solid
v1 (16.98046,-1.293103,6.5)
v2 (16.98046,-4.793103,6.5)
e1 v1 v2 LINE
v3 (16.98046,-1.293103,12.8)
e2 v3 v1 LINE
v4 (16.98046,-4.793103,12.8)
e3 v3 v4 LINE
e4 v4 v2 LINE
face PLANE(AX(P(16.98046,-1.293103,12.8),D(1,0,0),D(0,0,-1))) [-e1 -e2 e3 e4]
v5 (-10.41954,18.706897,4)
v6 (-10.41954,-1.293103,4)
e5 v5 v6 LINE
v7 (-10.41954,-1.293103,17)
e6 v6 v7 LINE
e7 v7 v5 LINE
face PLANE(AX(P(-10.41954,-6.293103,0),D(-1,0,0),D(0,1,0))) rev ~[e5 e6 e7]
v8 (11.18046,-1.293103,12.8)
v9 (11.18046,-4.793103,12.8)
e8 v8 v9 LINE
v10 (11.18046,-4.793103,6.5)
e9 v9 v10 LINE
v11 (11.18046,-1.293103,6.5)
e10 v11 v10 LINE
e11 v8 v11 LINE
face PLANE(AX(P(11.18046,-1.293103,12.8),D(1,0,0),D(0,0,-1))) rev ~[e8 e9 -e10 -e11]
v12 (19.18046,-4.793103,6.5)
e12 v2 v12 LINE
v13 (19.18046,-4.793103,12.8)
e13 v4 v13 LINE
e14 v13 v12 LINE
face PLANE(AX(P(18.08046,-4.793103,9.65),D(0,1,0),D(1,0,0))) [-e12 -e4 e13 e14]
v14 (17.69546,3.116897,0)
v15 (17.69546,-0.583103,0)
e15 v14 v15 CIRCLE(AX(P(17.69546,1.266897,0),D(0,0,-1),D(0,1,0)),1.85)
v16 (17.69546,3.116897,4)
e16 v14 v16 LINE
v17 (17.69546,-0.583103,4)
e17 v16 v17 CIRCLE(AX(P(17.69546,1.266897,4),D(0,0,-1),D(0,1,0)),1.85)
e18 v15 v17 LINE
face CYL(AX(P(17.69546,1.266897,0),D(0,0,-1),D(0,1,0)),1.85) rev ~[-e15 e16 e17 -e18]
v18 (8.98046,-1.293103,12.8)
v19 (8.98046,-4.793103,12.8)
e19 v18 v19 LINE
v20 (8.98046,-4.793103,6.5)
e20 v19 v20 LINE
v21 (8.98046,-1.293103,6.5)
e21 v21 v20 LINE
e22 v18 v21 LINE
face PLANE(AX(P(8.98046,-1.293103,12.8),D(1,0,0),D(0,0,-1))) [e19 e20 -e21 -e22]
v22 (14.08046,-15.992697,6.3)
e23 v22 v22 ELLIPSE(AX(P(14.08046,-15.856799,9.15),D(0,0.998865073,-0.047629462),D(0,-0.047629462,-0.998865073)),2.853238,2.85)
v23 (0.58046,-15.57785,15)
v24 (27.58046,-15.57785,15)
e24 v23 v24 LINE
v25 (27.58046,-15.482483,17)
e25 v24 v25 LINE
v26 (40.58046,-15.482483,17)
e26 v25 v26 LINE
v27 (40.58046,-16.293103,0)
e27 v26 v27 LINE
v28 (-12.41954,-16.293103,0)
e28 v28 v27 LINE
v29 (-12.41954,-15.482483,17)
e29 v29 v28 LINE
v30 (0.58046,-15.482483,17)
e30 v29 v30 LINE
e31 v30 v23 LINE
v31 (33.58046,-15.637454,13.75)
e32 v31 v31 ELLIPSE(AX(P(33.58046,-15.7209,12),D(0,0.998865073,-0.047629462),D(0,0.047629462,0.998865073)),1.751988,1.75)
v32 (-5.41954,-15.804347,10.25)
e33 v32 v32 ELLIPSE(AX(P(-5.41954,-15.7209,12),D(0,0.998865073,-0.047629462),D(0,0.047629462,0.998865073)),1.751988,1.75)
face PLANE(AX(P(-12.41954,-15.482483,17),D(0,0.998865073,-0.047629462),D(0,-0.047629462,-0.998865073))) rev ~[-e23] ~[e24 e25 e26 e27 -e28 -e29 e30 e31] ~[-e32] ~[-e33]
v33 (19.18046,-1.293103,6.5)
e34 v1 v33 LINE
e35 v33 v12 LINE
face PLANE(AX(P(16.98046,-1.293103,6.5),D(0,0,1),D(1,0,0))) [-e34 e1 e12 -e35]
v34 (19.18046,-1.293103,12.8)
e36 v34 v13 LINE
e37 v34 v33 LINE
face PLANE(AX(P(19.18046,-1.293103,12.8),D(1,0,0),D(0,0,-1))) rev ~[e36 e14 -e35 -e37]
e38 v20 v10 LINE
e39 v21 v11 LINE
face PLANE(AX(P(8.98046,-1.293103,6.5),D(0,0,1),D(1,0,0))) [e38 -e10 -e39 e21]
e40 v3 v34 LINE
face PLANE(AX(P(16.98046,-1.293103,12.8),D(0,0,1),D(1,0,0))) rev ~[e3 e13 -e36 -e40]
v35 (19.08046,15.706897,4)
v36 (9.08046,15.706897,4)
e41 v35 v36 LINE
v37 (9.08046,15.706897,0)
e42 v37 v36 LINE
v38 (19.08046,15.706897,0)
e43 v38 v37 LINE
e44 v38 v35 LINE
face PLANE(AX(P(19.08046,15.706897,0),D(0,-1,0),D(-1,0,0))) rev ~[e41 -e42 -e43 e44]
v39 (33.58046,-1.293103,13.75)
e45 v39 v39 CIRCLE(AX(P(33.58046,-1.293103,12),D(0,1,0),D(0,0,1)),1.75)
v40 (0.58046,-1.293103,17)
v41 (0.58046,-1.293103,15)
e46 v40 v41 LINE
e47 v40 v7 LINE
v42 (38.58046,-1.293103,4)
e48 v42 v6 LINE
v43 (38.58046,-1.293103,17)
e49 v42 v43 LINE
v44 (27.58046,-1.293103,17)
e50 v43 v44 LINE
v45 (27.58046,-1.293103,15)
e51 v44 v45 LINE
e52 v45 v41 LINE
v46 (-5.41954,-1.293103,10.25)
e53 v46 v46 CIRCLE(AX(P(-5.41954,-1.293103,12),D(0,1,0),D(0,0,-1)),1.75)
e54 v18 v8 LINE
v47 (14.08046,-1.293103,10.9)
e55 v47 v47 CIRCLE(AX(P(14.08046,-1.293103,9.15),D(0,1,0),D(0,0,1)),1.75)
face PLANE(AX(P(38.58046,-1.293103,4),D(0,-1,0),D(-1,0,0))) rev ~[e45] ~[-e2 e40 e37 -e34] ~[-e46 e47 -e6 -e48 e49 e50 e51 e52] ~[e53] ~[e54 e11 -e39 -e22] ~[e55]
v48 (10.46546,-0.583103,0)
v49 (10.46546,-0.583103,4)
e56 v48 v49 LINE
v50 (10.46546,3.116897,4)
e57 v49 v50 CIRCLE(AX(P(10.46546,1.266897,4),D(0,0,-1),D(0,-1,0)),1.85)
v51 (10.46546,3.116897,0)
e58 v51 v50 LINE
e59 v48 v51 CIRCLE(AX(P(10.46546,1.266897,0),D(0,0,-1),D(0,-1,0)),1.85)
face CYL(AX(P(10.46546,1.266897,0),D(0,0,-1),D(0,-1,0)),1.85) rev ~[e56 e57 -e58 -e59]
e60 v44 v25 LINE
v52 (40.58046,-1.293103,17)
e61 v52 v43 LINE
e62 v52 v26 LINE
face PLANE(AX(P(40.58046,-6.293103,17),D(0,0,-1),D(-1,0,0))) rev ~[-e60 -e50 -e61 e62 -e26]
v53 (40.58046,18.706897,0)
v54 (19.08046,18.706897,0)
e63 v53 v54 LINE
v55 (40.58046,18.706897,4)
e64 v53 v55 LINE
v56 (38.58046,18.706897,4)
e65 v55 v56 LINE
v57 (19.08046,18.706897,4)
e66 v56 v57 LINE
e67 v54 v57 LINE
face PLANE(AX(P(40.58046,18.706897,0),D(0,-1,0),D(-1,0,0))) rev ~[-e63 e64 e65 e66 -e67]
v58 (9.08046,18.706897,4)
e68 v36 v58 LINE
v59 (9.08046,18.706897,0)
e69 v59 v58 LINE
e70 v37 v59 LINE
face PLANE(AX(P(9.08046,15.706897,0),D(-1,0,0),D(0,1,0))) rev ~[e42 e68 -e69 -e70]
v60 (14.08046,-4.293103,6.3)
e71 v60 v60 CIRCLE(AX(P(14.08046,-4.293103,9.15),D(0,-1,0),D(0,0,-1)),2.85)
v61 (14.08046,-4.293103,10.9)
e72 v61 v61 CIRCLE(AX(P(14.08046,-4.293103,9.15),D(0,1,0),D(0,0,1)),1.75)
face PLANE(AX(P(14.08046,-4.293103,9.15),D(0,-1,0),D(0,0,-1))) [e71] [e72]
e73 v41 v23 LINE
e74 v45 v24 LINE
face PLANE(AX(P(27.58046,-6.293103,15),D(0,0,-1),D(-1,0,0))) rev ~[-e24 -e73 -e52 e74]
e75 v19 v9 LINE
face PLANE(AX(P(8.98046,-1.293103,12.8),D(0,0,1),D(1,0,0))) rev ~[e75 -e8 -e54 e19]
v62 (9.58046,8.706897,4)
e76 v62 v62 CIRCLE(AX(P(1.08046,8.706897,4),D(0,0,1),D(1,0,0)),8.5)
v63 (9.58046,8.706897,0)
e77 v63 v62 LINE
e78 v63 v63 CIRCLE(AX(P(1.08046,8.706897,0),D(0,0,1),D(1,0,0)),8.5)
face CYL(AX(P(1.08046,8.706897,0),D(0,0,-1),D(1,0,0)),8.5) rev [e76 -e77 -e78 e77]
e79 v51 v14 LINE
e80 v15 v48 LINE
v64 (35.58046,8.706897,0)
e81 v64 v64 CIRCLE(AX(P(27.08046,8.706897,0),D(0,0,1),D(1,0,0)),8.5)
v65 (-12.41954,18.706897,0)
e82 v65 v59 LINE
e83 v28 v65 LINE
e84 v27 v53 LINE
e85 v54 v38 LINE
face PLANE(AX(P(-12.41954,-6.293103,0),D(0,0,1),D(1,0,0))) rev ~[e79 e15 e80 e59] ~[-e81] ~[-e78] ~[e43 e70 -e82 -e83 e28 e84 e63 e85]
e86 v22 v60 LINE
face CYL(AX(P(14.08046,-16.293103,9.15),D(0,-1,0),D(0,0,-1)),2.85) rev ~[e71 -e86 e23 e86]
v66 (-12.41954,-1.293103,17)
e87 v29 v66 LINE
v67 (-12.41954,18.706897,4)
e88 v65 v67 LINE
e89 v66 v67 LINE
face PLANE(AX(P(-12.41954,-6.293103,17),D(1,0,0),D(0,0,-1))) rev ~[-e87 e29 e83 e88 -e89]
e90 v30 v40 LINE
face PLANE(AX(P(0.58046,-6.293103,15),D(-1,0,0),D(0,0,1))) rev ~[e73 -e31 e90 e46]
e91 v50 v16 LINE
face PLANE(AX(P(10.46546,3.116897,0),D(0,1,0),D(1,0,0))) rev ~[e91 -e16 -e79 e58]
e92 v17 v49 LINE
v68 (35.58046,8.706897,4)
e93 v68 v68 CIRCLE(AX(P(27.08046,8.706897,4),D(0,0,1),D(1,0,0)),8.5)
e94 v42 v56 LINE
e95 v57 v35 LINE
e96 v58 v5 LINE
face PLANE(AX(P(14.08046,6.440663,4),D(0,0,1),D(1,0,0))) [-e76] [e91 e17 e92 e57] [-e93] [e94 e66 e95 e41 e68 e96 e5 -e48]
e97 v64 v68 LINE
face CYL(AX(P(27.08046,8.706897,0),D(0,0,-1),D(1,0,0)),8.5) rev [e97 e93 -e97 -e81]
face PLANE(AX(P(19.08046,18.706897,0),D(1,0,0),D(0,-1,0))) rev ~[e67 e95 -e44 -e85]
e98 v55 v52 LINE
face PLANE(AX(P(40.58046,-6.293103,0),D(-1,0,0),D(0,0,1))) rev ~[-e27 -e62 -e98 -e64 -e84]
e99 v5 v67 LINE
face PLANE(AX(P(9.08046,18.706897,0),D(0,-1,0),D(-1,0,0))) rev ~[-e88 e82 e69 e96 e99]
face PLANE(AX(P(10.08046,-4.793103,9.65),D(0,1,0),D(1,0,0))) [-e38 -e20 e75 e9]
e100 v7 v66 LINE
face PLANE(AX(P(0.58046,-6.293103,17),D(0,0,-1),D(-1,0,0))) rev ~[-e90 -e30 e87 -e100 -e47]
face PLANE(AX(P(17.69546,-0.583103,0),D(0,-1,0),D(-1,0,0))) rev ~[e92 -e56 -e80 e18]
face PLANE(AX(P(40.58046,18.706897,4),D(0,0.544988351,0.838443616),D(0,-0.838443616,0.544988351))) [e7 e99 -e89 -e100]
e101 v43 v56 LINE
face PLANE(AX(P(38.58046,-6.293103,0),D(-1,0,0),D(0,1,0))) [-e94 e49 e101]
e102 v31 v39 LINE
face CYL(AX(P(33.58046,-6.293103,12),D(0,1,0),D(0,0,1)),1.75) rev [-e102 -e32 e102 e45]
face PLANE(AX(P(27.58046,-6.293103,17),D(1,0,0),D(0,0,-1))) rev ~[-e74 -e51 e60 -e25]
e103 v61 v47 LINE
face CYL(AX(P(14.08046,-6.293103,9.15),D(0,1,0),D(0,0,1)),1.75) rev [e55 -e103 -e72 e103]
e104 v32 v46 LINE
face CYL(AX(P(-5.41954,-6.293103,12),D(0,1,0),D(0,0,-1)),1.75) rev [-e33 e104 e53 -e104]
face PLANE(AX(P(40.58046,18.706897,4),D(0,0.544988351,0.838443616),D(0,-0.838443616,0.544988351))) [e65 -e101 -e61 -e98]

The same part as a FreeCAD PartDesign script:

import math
import FreeCAD as App
import Part
import Sketcher

V = App.Vector
Q = App.Units.Quantity


def add_polygon(sketch, points):
    """Adds a closed chain of lines whose ends are joined by coincident constraints."""
    first, n = sketch.GeometryCount, len(points)
    for a, b in zip(points, points[1:] + points[:1]):
        sketch.addGeometry(Part.LineSegment(App.Vector(*a, 0), App.Vector(*b, 0)), False)
    for i in range(n):
        sketch.addConstraint(Sketcher.Constraint("Coincident", first + i, 2, first + (i + 1) % n, 1))

doc = App.newDocument("Part")
body = doc.addObject("PartDesign::Body", "Body")

# Sketch on XY plane
sketch1 = body.newObject("Sketcher::SketchObject", "Sketch")
sketch1.AttachmentSupport = (doc.getObject("XY_Plane"), [""])
sketch1.MapMode = "FlatFace"
add_polygon(sketch1, [(-10.4, 18.7), (-10.4, -6.3), (38.6, -6.3), (38.6, 18.7), (19.1, 18.7), (19.1, 15.7), (9.1, 15.7), (9.1, 18.7)])  # lines 0-7
sketch1.addGeometry(Part.LineSegment(V(17.7, -0.6, 0), V(10.5, -0.6, 0)), False)  # 8
sketch1.addGeometry(Part.ArcOfCircle(Part.Circle(V(10.5, 1.3, 0), V(0, 0, 1), 1.9), math.radians(90), math.radians(270)), False)  # 9
sketch1.addGeometry(Part.LineSegment(V(10.5, 3.1, 0), V(17.7, 3.1, 0)), False)  # 10
sketch1.addGeometry(Part.ArcOfCircle(Part.Circle(V(17.7, 1.3, 0), V(0, 0, 1), 1.9), math.radians(-90), math.radians(90)), False)  # 11
sketch1.addGeometry(Part.Circle(V(1.1, 8.7, 0), V(0, 0, 1), 8.5), False)  # 12
sketch1.addGeometry(Part.Circle(V(27.1, 8.7, 0), V(0, 0, 1), 8.5), False)  # 13
sketch1.addConstraint(Sketcher.Constraint("Tangent", 8, 2, 9, 2))
sketch1.addConstraint(Sketcher.Constraint("Tangent", 9, 1, 10, 1))
sketch1.addConstraint(Sketcher.Constraint("Tangent", 10, 2, 11, 2))
sketch1.addConstraint(Sketcher.Constraint("Tangent", 11, 1, 8, 1))
sketch1.addConstraint(Sketcher.Constraint("Vertical", 0))
sketch1.addConstraint(Sketcher.Constraint("Horizontal", 1))
sketch1.addConstraint(Sketcher.Constraint("Vertical", 2))
sketch1.addConstraint(Sketcher.Constraint("Horizontal", 3))
sketch1.addConstraint(Sketcher.Constraint("Vertical", 4))
sketch1.addConstraint(Sketcher.Constraint("Horizontal", 5))
sketch1.addConstraint(Sketcher.Constraint("Vertical", 6))
sketch1.addConstraint(Sketcher.Constraint("Horizontal", 7))
sketch1.addConstraint(Sketcher.Constraint("Horizontal", 8))
sketch1.addConstraint(Sketcher.Constraint("Horizontal", 10))
sketch1.addConstraint(Sketcher.Constraint("Equal", 12, 13))
sketch1.addConstraint(Sketcher.Constraint("Horizontal", 12, 3, 13, 3))
sketch1.addConstraint(Sketcher.Constraint("Horizontal", 3, 2, 6, 2))
sketch1.addConstraint(Sketcher.Constraint("Equal", 3, 7))
sketch1.addConstraint(Sketcher.Constraint("Diameter", 12, 17.0))
sketch1.addConstraint(Sketcher.Constraint("DistanceX", 1, 1, 1, 2, 49.0))
sketch1.addConstraint(Sketcher.Constraint("DistanceX", 5, 2, 5, 1, 10.0))
sketch1.addConstraint(Sketcher.Constraint("DistanceY", 0, 2, 0, 1, 25.0))
sketch1.addConstraint(Sketcher.Constraint("DistanceY", 4, 2, 4, 1, 3.0))
sketch1.addConstraint(Sketcher.Constraint("Radius", 9, 1.85))
sketch1.addConstraint(Sketcher.Constraint("DistanceX", 12, 3, 13, 3, 26.0))
sketch1.addConstraint(Sketcher.Constraint("DistanceY", 0, 2, 12, 3, 15.0))
sketch1.addConstraint(Sketcher.Constraint("DistanceX", 3, 2, 13, 3, 8.0))
sketch1.addConstraint(Sketcher.Constraint("DistanceX", 8, 2, 8, 1, 7.23))
sketch1.addConstraint(Sketcher.Constraint("DistanceY", 9, 3, 12, 3, 7.44))
sketch1.addConstraint(Sketcher.Constraint("DistanceX", 12, 3, 9, 3, 9.385))
sketch1.addConstraint(Sketcher.Constraint("DistanceX", -1, 1, 9, 3, 10.46546))
sketch1.addConstraint(Sketcher.Constraint("DistanceY", -1, 1, 9, 3, 1.266897))
pad1 = body.newObject("PartDesign::Pad", "Pad")
pad1.Profile = sketch1
pad1.Length = 4

# Sketch on XY plane
sketch2 = body.newObject("Sketcher::SketchObject", "Sketch001")
sketch2.AttachmentSupport = (doc.getObject("XY_Plane"), [""])
sketch2.MapMode = "FlatFace"
sketch2.AttachmentOffset = App.Placement(V(0, 0, 4), App.Rotation())
add_polygon(sketch2, [(39, -1), (-10, -1), (-10, -6), (39, -6)])  # lines 0-3
sketch2.addConstraint(Sketcher.Constraint("Horizontal", 0))
sketch2.addConstraint(Sketcher.Constraint("Vertical", 1))
sketch2.addConstraint(Sketcher.Constraint("Horizontal", 2))
sketch2.addConstraint(Sketcher.Constraint("Vertical", 3))
sketch2.addConstraint(Sketcher.Constraint("DistanceX", 0, 2, 0, 1, 49.0))
sketch2.addConstraint(Sketcher.Constraint("DistanceY", 1, 2, 1, 1, 5.0))
sketch2.addConstraint(Sketcher.Constraint("DistanceX", 0, 2, -1, 1, 10.41954))
sketch2.addConstraint(Sketcher.Constraint("DistanceY", 0, 2, -1, 1, 1.293103))
pad2 = body.newObject("PartDesign::Pad", "Pad001")
pad2.Profile = sketch2
pad2.Length = 13

# Sketch on XZ plane
sketch3 = body.newObject("Sketcher::SketchObject", "Sketch002")
sketch3.AttachmentSupport = (doc.getObject("XZ_Plane"), [""])
sketch3.MapMode = "FlatFace"
sketch3.AttachmentOffset = App.Placement(V(0, 0, 1.293103), App.Rotation())
add_polygon(sketch3, [(9, 6.5), (9, 12.8), (11.2, 12.8), (11.2, 6.5)])  # lines 0-3
add_polygon(sketch3, [(17, 6.5), (17, 12.8), (19.2, 12.8), (19.2, 6.5)])  # lines 4-7
sketch3.addConstraint(Sketcher.Constraint("Vertical", 0))
sketch3.addConstraint(Sketcher.Constraint("Horizontal", 1))
sketch3.addConstraint(Sketcher.Constraint("Vertical", 2))
sketch3.addConstraint(Sketcher.Constraint("Horizontal", 3))
sketch3.addConstraint(Sketcher.Constraint("Vertical", 4))
sketch3.addConstraint(Sketcher.Constraint("Horizontal", 5))
sketch3.addConstraint(Sketcher.Constraint("Vertical", 6))
sketch3.addConstraint(Sketcher.Constraint("Horizontal", 7))
sketch3.addConstraint(Sketcher.Constraint("Horizontal", 1, 2, 4, 2))
sketch3.addConstraint(Sketcher.Constraint("Horizontal", 3, 2, 6, 2))
sketch3.addConstraint(Sketcher.Constraint("Equal", 3, 5))
sketch3.addConstraint(Sketcher.Constraint("DistanceX", 1, 1, 1, 2, 2.2))
sketch3.addConstraint(Sketcher.Constraint("DistanceY", 0, 1, 0, 2, 6.3))
sketch3.addConstraint(Sketcher.Constraint("DistanceX", 0, 2, 4, 2, 8.0))
sketch3.addConstraint(Sketcher.Constraint("DistanceY", -1, 1, 0, 2, 12.8))
sketch3.addConstraint(Sketcher.Constraint("DistanceX", -1, 1, 0, 2, 8.98046))
pocket1 = body.newObject("PartDesign::Pocket", "Pocket")
pocket1.Profile = sketch3
pocket1.Length = 3.5
pocket1.Reversed = True

# Sketch on XZ plane
sketch4 = body.newObject("Sketcher::SketchObject", "Sketch003")
sketch4.AttachmentSupport = (doc.getObject("XZ_Plane"), [""])
sketch4.MapMode = "FlatFace"
sketch4.AttachmentOffset = App.Placement(V(0, 0, 1.293103), App.Rotation())
sketch4.addGeometry(Part.Circle(V(14.1, 9.2, 0), V(0, 0, 1), 1.8), False)
sketch4.addGeometry(Part.Circle(V(33.6, 12, 0), V(0, 0, 1), 1.8), False)
sketch4.addGeometry(Part.Circle(V(-5.4, 12, 0), V(0, 0, 1), 1.8), False)
sketch4.addConstraint(Sketcher.Constraint("Equal", 0, 1))
sketch4.addConstraint(Sketcher.Constraint("Equal", 1, 2))
sketch4.addConstraint(Sketcher.Constraint("Horizontal", 1, 3, 2, 3))
sketch4.addConstraint(Sketcher.Constraint("Diameter", 0, 3.5))
sketch4.addConstraint(Sketcher.Constraint("DistanceY", -1, 1, 1, 3, 12.0))
sketch4.addConstraint(Sketcher.Constraint("DistanceX", 2, 3, 1, 3, 39.0))
sketch4.addConstraint(Sketcher.Constraint("DistanceX", 0, 3, 1, 3, 19.5))
sketch4.addConstraint(Sketcher.Constraint("DistanceY", -1, 1, 0, 3, 9.15))
sketch4.addConstraint(Sketcher.Constraint("DistanceX", -1, 1, 0, 3, 14.08046))
pocket2 = body.newObject("PartDesign::Pocket", "Pocket001")
pocket2.Profile = sketch4
pocket2.Type = "ThroughAll"
pocket2.Reversed = True

# Sketch on XZ plane
sketch5 = body.newObject("Sketcher::SketchObject", "Sketch004")
sketch5.AttachmentSupport = (doc.getObject("XZ_Plane"), [""])
sketch5.MapMode = "FlatFace"
sketch5.AttachmentOffset = App.Placement(V(0, 0, 1.293103), App.Rotation())
add_polygon(sketch5, [(0.6, 15), (0.6, 17), (27.6, 17), (27.6, 15)])  # lines 0-3
sketch5.addConstraint(Sketcher.Constraint("Vertical", 0))
sketch5.addConstraint(Sketcher.Constraint("Horizontal", 1))
sketch5.addConstraint(Sketcher.Constraint("Vertical", 2))
sketch5.addConstraint(Sketcher.Constraint("Horizontal", 3))
sketch5.addConstraint(Sketcher.Constraint("DistanceX", 1, 1, 1, 2, 27.0))
sketch5.addConstraint(Sketcher.Constraint("DistanceY", 0, 1, 0, 2, 2.0))
sketch5.addConstraint(Sketcher.Constraint("DistanceY", -1, 1, 0, 2, 17.0))
sketch5.addConstraint(Sketcher.Constraint("DistanceX", -1, 1, 0, 2, 0.58046))
pocket3 = body.newObject("PartDesign::Pocket", "Pocket002")
pocket3.Profile = sketch5
pocket3.Type = "ThroughAll"
pocket3.Reversed = True

# Sketch on XY plane
sketch6 = body.newObject("Sketcher::SketchObject", "Sketch005")
sketch6.AttachmentSupport = (doc.getObject("XY_Plane"), [""])
sketch6.MapMode = "FlatFace"
add_polygon(sketch6, [(40.6, 18.7), (40.6, -6.3), (38.6, -6.3), (38.6, 18.7)])  # lines 0-3
add_polygon(sketch6, [(-10.4, 18.7), (-10.4, -6.3), (-12.4, -6.3), (-12.4, 18.7)])  # lines 4-7
sketch6.addConstraint(Sketcher.Constraint("Vertical", 0))
sketch6.addConstraint(Sketcher.Constraint("Horizontal", 1))
sketch6.addConstraint(Sketcher.Constraint("Vertical", 2))
sketch6.addConstraint(Sketcher.Constraint("Horizontal", 3))
sketch6.addConstraint(Sketcher.Constraint("Vertical", 4))
sketch6.addConstraint(Sketcher.Constraint("Horizontal", 5))
sketch6.addConstraint(Sketcher.Constraint("Vertical", 6))
sketch6.addConstraint(Sketcher.Constraint("Horizontal", 7))
sketch6.addConstraint(Sketcher.Constraint("Horizontal", 1, 2, 4, 2))
sketch6.addConstraint(Sketcher.Constraint("Horizontal", 3, 2, 6, 2))
sketch6.addConstraint(Sketcher.Constraint("Equal", 3, 5))
sketch6.addConstraint(Sketcher.Constraint("DistanceX", 1, 2, 1, 1, 2.0))
sketch6.addConstraint(Sketcher.Constraint("DistanceY", 0, 2, 0, 1, 25.0))
sketch6.addConstraint(Sketcher.Constraint("DistanceX", 4, 2, 1, 2, 49.0))
sketch6.addConstraint(Sketcher.Constraint("DistanceX", -1, 1, 0, 2, 40.58046))
sketch6.addConstraint(Sketcher.Constraint("DistanceY", 0, 2, -1, 1, 6.293103))
pad3 = body.newObject("PartDesign::Pad", "Pad002")
pad3.Profile = sketch6
pad3.Length = 17

# Sketch on YZ plane
sketch7 = body.newObject("Sketcher::SketchObject", "Sketch006")
sketch7.AttachmentSupport = (doc.getObject("YZ_Plane"), [""])
sketch7.MapMode = "FlatFace"
sketch7.AttachmentOffset = App.Placement(V(0, 0, 40.58046), App.Rotation())
add_polygon(sketch7, [(-1, 17), (19, 4), (19, 17)])  # lines 0-2
sketch7.addConstraint(Sketcher.Constraint("Vertical", 1))
sketch7.addConstraint(Sketcher.Constraint("Horizontal", 2))
sketch7.addConstraint(Sketcher.Constraint("DistanceX", 2, 2, 2, 1, 20.0))
sketch7.addConstraint(Sketcher.Constraint("DistanceY", 1, 1, 1, 2, 13.0))
sketch7.addConstraint(Sketcher.Constraint("DistanceY", -1, 1, 0, 2, 4.0))
sketch7.addConstraint(Sketcher.Constraint("DistanceX", -1, 1, 0, 2, 18.706897))
pocket4 = body.newObject("PartDesign::Pocket", "Pocket003")
pocket4.Profile = sketch7
pocket4.Length = 72

# Sketch on XZ plane
sketch8 = body.newObject("Sketcher::SketchObject", "Sketch007")
sketch8.AttachmentSupport = (doc.getObject("XZ_Plane"), [""])
sketch8.MapMode = "FlatFace"
sketch8.AttachmentOffset = App.Placement(V(0, 0, 6.293103), App.Rotation())
add_polygon(sketch8, [(40.6, 0), (40.6, 17), (27.6, 17), (27.6, 15), (0.6, 15), (0.6, 17), (-12.4, 17), (-12.4, 0)])  # lines 0-7
sketch8.addGeometry(Part.Circle(V(33.6, 12, 0), V(0, 0, 1), 1.8), False)  # 8
sketch8.addGeometry(Part.Circle(V(-5.4, 12, 0), V(0, 0, 1), 1.8), False)  # 9
sketch8.addGeometry(Part.Circle(V(14.1, 9.2, 0), V(0, 0, 1), 1.8), False)  # 10
sketch8.addConstraint(Sketcher.Constraint("Vertical", 0))
sketch8.addConstraint(Sketcher.Constraint("Horizontal", 1))
sketch8.addConstraint(Sketcher.Constraint("Vertical", 2))
sketch8.addConstraint(Sketcher.Constraint("Horizontal", 3))
sketch8.addConstraint(Sketcher.Constraint("Vertical", 4))
sketch8.addConstraint(Sketcher.Constraint("Horizontal", 5))
sketch8.addConstraint(Sketcher.Constraint("Vertical", 6))
sketch8.addConstraint(Sketcher.Constraint("Horizontal", 7))
sketch8.addConstraint(Sketcher.Constraint("Equal", 8, 9))
sketch8.addConstraint(Sketcher.Constraint("Equal", 9, 10))
sketch8.addConstraint(Sketcher.Constraint("PointOnObject", 6, 2, -1))
sketch8.addConstraint(Sketcher.Constraint("Horizontal", 8, 3, 9, 3))
sketch8.addConstraint(Sketcher.Constraint("Horizontal", 1, 2, 4, 2))
sketch8.addConstraint(Sketcher.Constraint("Equal", 1, 5))
sketch8.addConstraint(Sketcher.Constraint("Diameter", 8, 3.5))
sketch8.addConstraint(Sketcher.Constraint("DistanceX", 1, 2, 1, 1, 13.0))
sketch8.addConstraint(Sketcher.Constraint("DistanceX", 3, 2, 3, 1, 27.0))
sketch8.addConstraint(Sketcher.Constraint("DistanceY", 0, 1, 0, 2, 17.0))
sketch8.addConstraint(Sketcher.Constraint("DistanceY", 2, 2, 2, 1, 2.0))
sketch8.addConstraint(Sketcher.Constraint("DistanceY", -1, 1, 8, 3, 12.0))
sketch8.addConstraint(Sketcher.Constraint("DistanceX", 9, 3, 8, 3, 39.0))
sketch8.addConstraint(Sketcher.Constraint("DistanceX", 8, 3, 0, 2, 7.0))
sketch8.addConstraint(Sketcher.Constraint("DistanceX", 10, 3, 8, 3, 19.5))
sketch8.addConstraint(Sketcher.Constraint("DistanceY", -1, 1, 10, 3, 9.15))
sketch8.addConstraint(Sketcher.Constraint("DistanceX", -1, 1, 8, 3, 33.58046))
pad4 = body.newObject("PartDesign::Pad", "Pad003")
pad4.Profile = sketch8
pad4.Length = 10

# Sketch on XZ plane
sketch9 = body.newObject("Sketcher::SketchObject", "Sketch008")
sketch9.AttachmentSupport = (doc.getObject("XZ_Plane"), [""])
sketch9.MapMode = "FlatFace"
sketch9.AttachmentOffset = App.Placement(V(0, 0, 16.293103), App.Rotation())
sketch9.addGeometry(Part.Circle(V(14.1, 9.2, 0), V(0, 0, 1), 2.9), False)
sketch9.addConstraint(Sketcher.Constraint("Diameter", 0, 5.7))
sketch9.addConstraint(Sketcher.Constraint("DistanceY", -1, 1, 0, 3, 9.15))
sketch9.addConstraint(Sketcher.Constraint("DistanceX", -1, 1, 0, 3, 14.08046))
pocket5 = body.newObject("PartDesign::Pocket", "Pocket004")
pocket5.Profile = sketch9
pocket5.Length = 12

# Sketch on YZ plane
sketch10 = body.newObject("Sketcher::SketchObject", "Sketch009")
sketch10.AttachmentSupport = (doc.getObject("YZ_Plane"), [""])
sketch10.MapMode = "FlatFace"
sketch10.AttachmentOffset = App.Placement(V(0, 0, -12.41954), App.Rotation())
add_polygon(sketch10, [(-16.3, 17), (-15.5, 17), (-16.3, 0)])  # lines 0-2
sketch10.addConstraint(Sketcher.Constraint("Horizontal", 0))
sketch10.addConstraint(Sketcher.Constraint("Vertical", 2))
sketch10.addConstraint(Sketcher.Constraint("PointOnObject", 1, 2, -1))
sketch10.addConstraint(Sketcher.Constraint("DistanceY", 2, 1, 2, 2, 17.0))
sketch10.addConstraint(Sketcher.Constraint("Angle", 1, Q("-92.73 deg")))
sketch10.addConstraint(Sketcher.Constraint("DistanceX", 0, 2, -1, 1, 15.482483))
pocket6 = body.newObject("PartDesign::Pocket", "Pocket005")
pocket6.Profile = sketch10
pocket6.Length = 54
pocket6.Reversed = True

doc.recompute()
